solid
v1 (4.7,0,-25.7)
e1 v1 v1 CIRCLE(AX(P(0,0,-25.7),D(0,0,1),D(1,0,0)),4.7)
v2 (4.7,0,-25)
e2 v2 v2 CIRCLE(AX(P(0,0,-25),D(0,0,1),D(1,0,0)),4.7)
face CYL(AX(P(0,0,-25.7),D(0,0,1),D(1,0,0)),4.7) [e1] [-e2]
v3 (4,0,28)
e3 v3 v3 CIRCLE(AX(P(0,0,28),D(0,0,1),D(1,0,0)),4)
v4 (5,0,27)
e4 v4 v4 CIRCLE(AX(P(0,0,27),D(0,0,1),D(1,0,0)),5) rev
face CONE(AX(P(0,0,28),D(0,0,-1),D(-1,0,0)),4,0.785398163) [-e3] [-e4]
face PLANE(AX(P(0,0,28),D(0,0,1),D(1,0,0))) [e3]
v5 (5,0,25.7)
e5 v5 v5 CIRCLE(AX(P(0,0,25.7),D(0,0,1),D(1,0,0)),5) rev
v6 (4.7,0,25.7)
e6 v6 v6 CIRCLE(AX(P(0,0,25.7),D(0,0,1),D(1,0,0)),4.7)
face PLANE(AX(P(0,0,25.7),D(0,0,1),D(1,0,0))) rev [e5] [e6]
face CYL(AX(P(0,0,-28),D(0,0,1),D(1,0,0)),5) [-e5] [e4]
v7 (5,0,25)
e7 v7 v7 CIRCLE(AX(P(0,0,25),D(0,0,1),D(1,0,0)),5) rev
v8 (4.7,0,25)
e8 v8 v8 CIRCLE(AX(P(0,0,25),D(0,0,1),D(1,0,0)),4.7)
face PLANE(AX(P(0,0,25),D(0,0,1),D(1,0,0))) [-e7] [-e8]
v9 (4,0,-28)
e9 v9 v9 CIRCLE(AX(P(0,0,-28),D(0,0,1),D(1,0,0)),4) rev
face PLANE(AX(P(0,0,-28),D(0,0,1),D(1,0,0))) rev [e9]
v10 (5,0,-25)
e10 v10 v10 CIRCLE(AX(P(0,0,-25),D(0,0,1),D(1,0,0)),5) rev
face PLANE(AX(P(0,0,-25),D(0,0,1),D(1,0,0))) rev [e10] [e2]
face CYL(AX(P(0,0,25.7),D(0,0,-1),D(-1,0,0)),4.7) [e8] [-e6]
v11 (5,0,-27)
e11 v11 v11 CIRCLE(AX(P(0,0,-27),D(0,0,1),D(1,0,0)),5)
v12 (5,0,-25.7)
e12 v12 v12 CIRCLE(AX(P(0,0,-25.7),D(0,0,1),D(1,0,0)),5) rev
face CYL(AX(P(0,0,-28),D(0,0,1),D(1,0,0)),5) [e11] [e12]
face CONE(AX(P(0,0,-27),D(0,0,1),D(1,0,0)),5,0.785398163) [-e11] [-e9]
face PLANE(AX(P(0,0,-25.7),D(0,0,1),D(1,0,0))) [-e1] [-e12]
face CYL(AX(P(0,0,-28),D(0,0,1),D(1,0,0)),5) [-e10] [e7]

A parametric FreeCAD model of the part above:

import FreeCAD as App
import Part
import Sketcher

V = App.Vector


def edges_at(feature, points):
    """Names of the edges that pass closest to the given points."""
    edges = feature.Shape.Edges
    near = lambda p: min(range(len(edges)), key=lambda i: edges[i].distToShape(Part.Vertex(*p))[0])
    return sorted({f"Edge{near(p) + 1}" for p in points})

doc = App.newDocument("Part")
body = doc.addObject("PartDesign::Body", "Body")

# Sketch on XY plane
sketch1 = body.newObject("Sketcher::SketchObject", "Sketch")
sketch1.AttachmentSupport = (doc.getObject("XY_Plane"), [""])
sketch1.MapMode = "FlatFace"
sketch1.addGeometry(Part.Circle(V(0, 0, 0), V(0, 0, 1), 5), False)
sketch1.addConstraint(Sketcher.Constraint("Coincident", 0, 3, -1, 1))
sketch1.addConstraint(Sketcher.Constraint("Diameter", 0, 10.0))
pad1 = body.newObject("PartDesign::Pad", "Pad")
pad1.Profile = sketch1
pad1.Type = "TwoLengths"
pad1.Length = 28
pad1.Length2 = 28

# Sketch on XY plane
sketch2 = body.newObject("Sketcher::SketchObject", "Sketch001")
sketch2.AttachmentSupport = (doc.getObject("XY_Plane"), [""])
sketch2.MapMode = "FlatFace"
sketch2.AttachmentOffset = App.Placement(V(0, 0, 25), App.Rotation())
sketch2.addGeometry(Part.Circle(V(0, 0, 0), V(0, 0, 1), 14.7), False)
sketch2.addGeometry(Part.Circle(V(0, 0, 0), V(0, 0, 1), 4.7), False)
sketch2.addConstraint(Sketcher.Constraint("Coincident", 0, 3, -1, 1))
sketch2.addConstraint(Sketcher.Constraint("Coincident", 1, 3, -1, 1))
sketch2.addConstraint(Sketcher.Constraint("Diameter", 0, 29.4))
sketch2.addConstraint(Sketcher.Constraint("Diameter", 1, 9.4))
pocket1 = body.newObject("PartDesign::Pocket", "Pocket")
pocket1.Profile = sketch2
pocket1.Length = 0.7
pocket1.Reversed = True
doc.recompute()

mirrored = body.newObject("PartDesign::Mirrored", "Mirrored")
mirrored.Originals = [pocket1]
mirrored.MirrorPlane = (doc.getObject("XY_Plane"), [""])
body.Tip = mirrored
doc.recompute()

chamfer = body.newObject("PartDesign::Chamfer", "Chamfer")
chamfer.Base = (mirrored, edges_at(mirrored, [(-5, 0, -28), (-5, 0, 28)]))
chamfer.Size = 1

doc.recompute()
